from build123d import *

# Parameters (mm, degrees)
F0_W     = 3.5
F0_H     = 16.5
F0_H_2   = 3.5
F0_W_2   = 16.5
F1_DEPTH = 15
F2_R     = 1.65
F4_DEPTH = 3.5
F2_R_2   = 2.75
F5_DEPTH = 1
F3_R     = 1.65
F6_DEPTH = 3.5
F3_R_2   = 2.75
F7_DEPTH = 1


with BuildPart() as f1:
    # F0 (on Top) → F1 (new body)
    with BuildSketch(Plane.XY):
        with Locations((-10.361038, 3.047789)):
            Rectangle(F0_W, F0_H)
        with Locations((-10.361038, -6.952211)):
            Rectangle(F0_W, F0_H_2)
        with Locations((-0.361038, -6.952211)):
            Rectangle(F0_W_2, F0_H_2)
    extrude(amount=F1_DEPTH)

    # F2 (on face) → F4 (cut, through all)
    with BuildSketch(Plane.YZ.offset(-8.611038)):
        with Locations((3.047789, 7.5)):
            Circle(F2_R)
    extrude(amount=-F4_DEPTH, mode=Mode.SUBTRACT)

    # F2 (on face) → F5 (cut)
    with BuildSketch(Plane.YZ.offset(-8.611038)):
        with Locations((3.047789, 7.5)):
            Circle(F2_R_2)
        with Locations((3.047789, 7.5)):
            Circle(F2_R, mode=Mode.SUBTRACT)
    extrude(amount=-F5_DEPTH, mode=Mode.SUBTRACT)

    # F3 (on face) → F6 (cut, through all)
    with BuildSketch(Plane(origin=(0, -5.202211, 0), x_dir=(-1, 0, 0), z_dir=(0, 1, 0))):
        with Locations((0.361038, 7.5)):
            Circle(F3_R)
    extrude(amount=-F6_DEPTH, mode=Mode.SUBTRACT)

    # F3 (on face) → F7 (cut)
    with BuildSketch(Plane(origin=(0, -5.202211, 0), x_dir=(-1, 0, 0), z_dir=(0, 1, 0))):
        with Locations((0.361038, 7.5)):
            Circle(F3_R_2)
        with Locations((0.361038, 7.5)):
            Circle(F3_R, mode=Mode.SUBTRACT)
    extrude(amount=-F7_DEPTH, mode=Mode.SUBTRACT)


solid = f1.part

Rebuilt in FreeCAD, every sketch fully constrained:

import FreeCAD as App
import Part
import Sketcher
Q = App.Units.Quantity


def add_polygon(sketch, points):
    """Adds a closed chain of lines whose ends are joined by coincident constraints."""
    first, n = sketch.GeometryCount, len(points)
    for a, b in zip(points, points[1:] + points[:1]):
        sketch.addGeometry(Part.LineSegment(App.Vector(*a, 0), App.Vector(*b, 0)), False)
    for i in range(n):
        sketch.addConstraint(Sketcher.Constraint("Coincident", first + i, 2, first + (i + 1) % n, 1))

doc = App.newDocument("Part")
body = doc.addObject("PartDesign::Body", "Body")

sketch1 = doc.addObject("Sketcher::SketchObject", "Sketch")
body.addObject(sketch1)
sketch1.AttachmentSupport = (doc.XY_Plane, [""])
sketch1.MapMode = "FlatFace"
add_polygon(sketch1, [(-12.1, 11.3), (-12.1, -8.7), (7.9, -8.7), (7.9, -5.2), (-8.6, -5.2), (-8.6, 11.3)])
sketch1.addConstraint(Sketcher.Constraint("Vertical", 0))
sketch1.addConstraint(Sketcher.Constraint("Horizontal", 1))
sketch1.addConstraint(Sketcher.Constraint("Vertical", 2))
sketch1.addConstraint(Sketcher.Constraint("Horizontal", 3))
sketch1.addConstraint(Sketcher.Constraint("Vertical", 4))
sketch1.addConstraint(Sketcher.Constraint("Horizontal", 5))
sketch1.addConstraint(Sketcher.Constraint("Equal", 1, 0))
sketch1.addConstraint(Sketcher.Constraint("Equal", 5, 2))
sketch1.addConstraint(Sketcher.Constraint("DistanceX", 1, 1, 1, 2, Q("20 mm")))
sketch1.addConstraint(Sketcher.Constraint("DistanceX", 3, 2, 3, 1, Q("16.5 mm")))
sketch1.addConstraint(Sketcher.Constraint("DistanceX", 0, 2, -1, 1, Q("12.111038 mm")))
sketch1.addConstraint(Sketcher.Constraint("DistanceY", 0, 2, -1, 1, Q("8.702211 mm")))
pad1 = doc.addObject("PartDesign::Pad", "Pad")
body.addObject(pad1)
pad1.Profile = sketch1
pad1.Length = 15

sketch2 = doc.addObject("Sketcher::SketchObject", "Sketch001")
body.addObject(sketch2)
sketch2.AttachmentSupport = (doc.YZ_Plane, [""])
sketch2.MapMode = "FlatFace"
sketch2.AttachmentOffset = App.Placement(App.Vector(0, 0, -8.611038), App.Rotation())
sketch2.addGeometry(Part.Circle(App.Vector(3, 7.5, 0), App.Vector(0, 0, 1), 1.6), False)
sketch2.addConstraint(Sketcher.Constraint("Diameter", 0, Q("3.3 mm")))
sketch2.addConstraint(Sketcher.Constraint("DistanceY", -1, 1, 0, 3, Q("7.5 mm")))
sketch2.addConstraint(Sketcher.Constraint("DistanceX", -1, 1, 0, 3, Q("3.047789 mm")))
pocket1 = doc.addObject("PartDesign::Pocket", "Pocket")
body.addObject(pocket1)
pocket1.Profile = sketch2
pocket1.Type = "ThroughAll"

sketch3 = doc.addObject("Sketcher::SketchObject", "Sketch002")
body.addObject(sketch3)
sketch3.AttachmentSupport = (doc.YZ_Plane, [""])
sketch3.MapMode = "FlatFace"
sketch3.AttachmentOffset = App.Placement(App.Vector(0, 0, -8.611038), App.Rotation())
sketch3.addGeometry(Part.Circle(App.Vector(3, 7.5, 0), App.Vector(0, 0, 1), 2.8), False)
sketch3.addGeometry(Part.Circle(App.Vector(3, 7.5, 0), App.Vector(0, 0, 1), 1.6), False)
sketch3.addConstraint(Sketcher.Constraint("Coincident", 1, 3, 0, 3))
sketch3.addConstraint(Sketcher.Constraint("Diameter", 0, Q("5.5 mm")))
sketch3.addConstraint(Sketcher.Constraint("Diameter", 1, Q("3.3 mm")))
sketch3.addConstraint(Sketcher.Constraint("DistanceY", -1, 1, 0, 3, Q("7.5 mm")))
sketch3.addConstraint(Sketcher.Constraint("DistanceX", -1, 1, 0, 3, Q("3.047789 mm")))
pocket2 = doc.addObject("PartDesign::Pocket", "Pocket001")
body.addObject(pocket2)
pocket2.Profile = sketch3
pocket2.Length = 1

sketch4 = doc.addObject("Sketcher::SketchObject", "Sketch003")
body.addObject(sketch4)
sketch4.AttachmentSupport = (doc.XZ_Plane, [""])
sketch4.MapMode = "FlatFace"
sketch4.AttachmentOffset = App.Placement(App.Vector(0, 0, 5.202211), App.Rotation())
sketch4.addGeometry(Part.Circle(App.Vector(-0.4, 7.5, 0), App.Vector(0, 0, 1), 1.6), False)
sketch4.addConstraint(Sketcher.Constraint("Diameter", 0, Q("3.3 mm")))
sketch4.addConstraint(Sketcher.Constraint("DistanceY", -1, 1, 0, 3, Q("7.5 mm")))
sketch4.addConstraint(Sketcher.Constraint("DistanceX", 0, 3, -1, 1, Q("0.361038 mm")))
pocket3 = doc.addObject("PartDesign::Pocket", "Pocket002")
body.addObject(pocket3)
pocket3.Profile = sketch4
pocket3.Type = "ThroughAll"
pocket3.Reversed = True

sketch5 = doc.addObject("Sketcher::SketchObject", "Sketch004")
body.addObject(sketch5)
sketch5.AttachmentSupport = (doc.XZ_Plane, [""])
sketch5.MapMode = "FlatFace"
sketch5.AttachmentOffset = App.Placement(App.Vector(0, 0, 5.202211), App.Rotation())
sketch5.addGeometry(Part.Circle(App.Vector(-0.4, 7.5, 0), App.Vector(0, 0, 1), 2.8), False)
sketch5.addGeometry(Part.Circle(App.Vector(-0.4, 7.5, 0), App.Vector(0, 0, 1), 1.6), False)
sketch5.addConstraint(Sketcher.Constraint("Coincident", 1, 3, 0, 3))
sketch5.addConstraint(Sketcher.Constraint("Diameter", 0, Q("5.5 mm")))
sketch5.addConstraint(Sketcher.Constraint("Diameter", 1, Q("3.3 mm")))
sketch5.addConstraint(Sketcher.Constraint("DistanceY", -1, 1, 0, 3, Q("7.5 mm")))
sketch5.addConstraint(Sketcher.Constraint("DistanceX", 0, 3, -1, 1, Q("0.361038 mm")))
pocket4 = doc.addObject("PartDesign::Pocket", "Pocket003")
body.addObject(pocket4)
pocket4.Profile = sketch5
pocket4.Length = 1
pocket4.Reversed = True

doc.recompute()
